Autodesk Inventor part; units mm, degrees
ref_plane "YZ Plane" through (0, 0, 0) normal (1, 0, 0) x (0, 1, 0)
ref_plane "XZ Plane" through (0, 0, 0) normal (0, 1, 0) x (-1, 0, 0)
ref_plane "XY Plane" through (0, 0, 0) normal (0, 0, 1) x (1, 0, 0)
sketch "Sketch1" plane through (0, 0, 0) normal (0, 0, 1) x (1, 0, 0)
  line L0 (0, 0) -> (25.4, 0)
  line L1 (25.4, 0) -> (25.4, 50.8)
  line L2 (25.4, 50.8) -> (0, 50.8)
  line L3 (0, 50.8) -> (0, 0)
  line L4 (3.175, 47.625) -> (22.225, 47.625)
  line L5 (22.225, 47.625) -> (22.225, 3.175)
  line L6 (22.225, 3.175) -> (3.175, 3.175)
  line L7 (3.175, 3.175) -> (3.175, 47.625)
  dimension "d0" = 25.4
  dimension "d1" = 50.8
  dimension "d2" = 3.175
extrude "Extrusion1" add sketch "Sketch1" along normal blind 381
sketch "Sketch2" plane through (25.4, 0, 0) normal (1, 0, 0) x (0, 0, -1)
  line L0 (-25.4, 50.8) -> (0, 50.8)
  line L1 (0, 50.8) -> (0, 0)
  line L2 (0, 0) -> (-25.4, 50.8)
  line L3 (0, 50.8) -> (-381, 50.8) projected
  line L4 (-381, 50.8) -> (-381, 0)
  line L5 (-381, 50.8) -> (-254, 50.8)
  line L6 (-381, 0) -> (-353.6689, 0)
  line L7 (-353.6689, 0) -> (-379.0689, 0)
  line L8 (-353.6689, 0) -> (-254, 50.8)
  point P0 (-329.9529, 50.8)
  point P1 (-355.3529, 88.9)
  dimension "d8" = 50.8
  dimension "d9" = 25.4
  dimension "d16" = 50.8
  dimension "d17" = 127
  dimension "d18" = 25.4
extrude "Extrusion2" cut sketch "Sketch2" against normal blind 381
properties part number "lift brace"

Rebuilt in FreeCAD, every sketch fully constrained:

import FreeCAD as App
import Part
import Sketcher
from FreeCAD import Vector
Q = App.Units.Quantity

doc = App.newDocument("Part")
body = doc.addObject("PartDesign::Body", "Body")

sketch1 = body.newObject("Sketcher::SketchObject", "Sketch")
sketch1.AttachmentSupport = (doc.getObject("XY_Plane"), [""])
sketch1.MapMode = "FlatFace"
sketch1.addGeometry(Part.LineSegment(Vector(0, 51, 0), Vector(0, 0, 0)), False)
sketch1.addGeometry(Part.LineSegment(Vector(0, 0, 0), Vector(25, 0, 0)), False)
sketch1.addGeometry(Part.LineSegment(Vector(25, 0, 0), Vector(25, 51, 0)), False)
sketch1.addGeometry(Part.LineSegment(Vector(25, 51, 0), Vector(0, 51, 0)), False)
sketch1.addGeometry(Part.LineSegment(Vector(3, 3, 0), Vector(3, 48, 0)), False)
sketch1.addGeometry(Part.LineSegment(Vector(3, 48, 0), Vector(22, 48, 0)), False)
sketch1.addGeometry(Part.LineSegment(Vector(22, 48, 0), Vector(22, 3, 0)), False)
sketch1.addGeometry(Part.LineSegment(Vector(22, 3, 0), Vector(3, 3, 0)), False)
sketch1.addConstraint(Sketcher.Constraint("Coincident", 0, 2, 1, 1))
sketch1.addConstraint(Sketcher.Constraint("Coincident", 1, 2, 2, 1))
sketch1.addConstraint(Sketcher.Constraint("Coincident", 2, 2, 3, 1))
sketch1.addConstraint(Sketcher.Constraint("Coincident", 3, 2, 0, 1))
sketch1.addConstraint(Sketcher.Constraint("Coincident", 4, 2, 5, 1))
sketch1.addConstraint(Sketcher.Constraint("Coincident", 5, 2, 6, 1))
sketch1.addConstraint(Sketcher.Constraint("Coincident", 6, 2, 7, 1))
sketch1.addConstraint(Sketcher.Constraint("Coincident", 7, 2, 4, 1))
sketch1.addConstraint(Sketcher.Constraint("Vertical", 0))
sketch1.addConstraint(Sketcher.Constraint("Horizontal", 1))
sketch1.addConstraint(Sketcher.Constraint("Vertical", 2))
sketch1.addConstraint(Sketcher.Constraint("Horizontal", 3))
sketch1.addConstraint(Sketcher.Constraint("Vertical", 4))
sketch1.addConstraint(Sketcher.Constraint("Horizontal", 5))
sketch1.addConstraint(Sketcher.Constraint("Vertical", 6))
sketch1.addConstraint(Sketcher.Constraint("Horizontal", 7))
sketch1.addConstraint(Sketcher.Constraint("Coincident", 0, 2, -1, 1))
sketch1.addConstraint(Sketcher.Constraint("DistanceX", 1, 1, 1, 2, Q("1 in")))
sketch1.addConstraint(Sketcher.Constraint("DistanceY", 0, 2, 0, 1, Q("2 in")))
sketch1.addConstraint(Sketcher.Constraint("DistanceX", -1, 1, 4, 2, Q("0.125 in")))
sketch1.addConstraint(Sketcher.Constraint("DistanceY", -1, 1, 6, 2, Q("0.125 in")))
sketch1.addConstraint(Sketcher.Constraint("DistanceY", 4, 2, 3, 2, Q("0.125 in")))
sketch1.addConstraint(Sketcher.Constraint("DistanceX", 5, 2, 2, 2, Q("0.125 in")))
pad1 = body.newObject("PartDesign::Pad", "Pad")
pad1.Profile = sketch1
pad1.Length = Q("15 in")

sketch2 = body.newObject("Sketcher::SketchObject", "Sketch001")
sketch2.AttachmentSupport = (doc.getObject("YZ_Plane"), [""])
sketch2.MapMode = "FlatFace"
sketch2.AttachmentOffset = App.Placement(Vector(0, 0, 1 * 25.4), App.Rotation())
sketch2.addGeometry(Part.LineSegment(Vector(51, 0, 0), Vector(51, 25, 0)), False)
sketch2.addGeometry(Part.LineSegment(Vector(51, 25, 0), Vector(0, 0, 0)), False)
sketch2.addGeometry(Part.LineSegment(Vector(0, 0, 0), Vector(51, 0, 0)), False)
sketch2.addGeometry(Part.LineSegment(Vector(0, 354, 0), Vector(51, 254, 0)), False)
sketch2.addGeometry(Part.LineSegment(Vector(51, 254, 0), Vector(51, 381, 0)), False)
sketch2.addGeometry(Part.LineSegment(Vector(51, 381, 0), Vector(0, 381, 0)), False)
sketch2.addGeometry(Part.LineSegment(Vector(0, 381, 0), Vector(0, 354, 0)), False)
sketch2.addConstraint(Sketcher.Constraint("Coincident", 0, 2, 1, 1))
sketch2.addConstraint(Sketcher.Constraint("Coincident", 1, 2, 2, 1))
sketch2.addConstraint(Sketcher.Constraint("Coincident", 2, 2, 0, 1))
sketch2.addConstraint(Sketcher.Constraint("Coincident", 3, 2, 4, 1))
sketch2.addConstraint(Sketcher.Constraint("Coincident", 4, 2, 5, 1))
sketch2.addConstraint(Sketcher.Constraint("Coincident", 5, 2, 6, 1))
sketch2.addConstraint(Sketcher.Constraint("Coincident", 6, 2, 3, 1))
sketch2.addConstraint(Sketcher.Constraint("Vertical", 0))
sketch2.addConstraint(Sketcher.Constraint("Horizontal", 2))
sketch2.addConstraint(Sketcher.Constraint("Vertical", 4))
sketch2.addConstraint(Sketcher.Constraint("Horizontal", 5))
sketch2.addConstraint(Sketcher.Constraint("Vertical", 6))
sketch2.addConstraint(Sketcher.Constraint("Coincident", 1, 2, -1, 1))
sketch2.addConstraint(Sketcher.Constraint("PointOnObject", 5, 2, -2))
sketch2.addConstraint(Sketcher.Constraint("Vertical", 2, 2, 3, 2))
sketch2.addConstraint(Sketcher.Constraint("DistanceX", 2, 1, 2, 2, Q("2 in")))
sketch2.addConstraint(Sketcher.Constraint("DistanceY", 0, 1, 0, 2, Q("1 in")))
sketch2.addConstraint(Sketcher.Constraint("DistanceY", 4, 1, 4, 2, Q("5 in")))
sketch2.addConstraint(Sketcher.Constraint("DistanceY", -1, 1, 3, 2, Q("10 in")))
sketch2.addConstraint(Sketcher.Constraint("DistanceY", 6, 2, 6, 1, 27.331))
pocket1 = body.newObject("PartDesign::Pocket", "Pocket")
pocket1.Profile = sketch2
pocket1.Length = Q("15 in")

doc.recompute()
